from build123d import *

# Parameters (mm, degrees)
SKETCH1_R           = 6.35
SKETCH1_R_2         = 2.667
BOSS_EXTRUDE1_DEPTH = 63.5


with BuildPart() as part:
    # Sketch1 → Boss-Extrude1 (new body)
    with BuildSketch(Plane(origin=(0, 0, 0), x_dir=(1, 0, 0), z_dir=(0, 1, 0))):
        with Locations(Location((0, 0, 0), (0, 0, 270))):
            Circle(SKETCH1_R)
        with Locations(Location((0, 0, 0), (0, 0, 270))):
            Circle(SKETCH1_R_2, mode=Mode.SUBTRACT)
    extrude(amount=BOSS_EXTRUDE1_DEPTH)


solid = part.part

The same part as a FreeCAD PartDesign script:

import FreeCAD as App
import Part
import Sketcher
Q = App.Units.Quantity

doc = App.newDocument("Part")
body = doc.addObject("PartDesign::Body", "Body")

sketch1 = body.newObject("Sketcher::SketchObject", "Sketch")
sketch1.AttachmentSupport = (doc.getObject("XZ_Plane"), [""])
sketch1.MapMode = "FlatFace"
sketch1.addGeometry([
    Part.Circle(App.Vector(0, 0, 0), App.Vector(0, 0, 1), 6.3),
    Part.Circle(App.Vector(0, 0, 0), App.Vector(0, 0, 1), 2.7),
], False)
sketch1.addConstraint([
    Sketcher.Constraint("Coincident", 0, 3, -1, 1),
    Sketcher.Constraint("Coincident", 1, 3, -1, 1),
    Sketcher.Constraint("Diameter", 0, Q("0.5 in")),
    Sketcher.Constraint("Diameter", 1, Q("0.21 in")),
])
pad1 = body.newObject("PartDesign::Pad", "Pad")
pad1.Profile = sketch1
pad1.Length = Q("2.5 in")
pad1.Reversed = True

doc.recompute()
